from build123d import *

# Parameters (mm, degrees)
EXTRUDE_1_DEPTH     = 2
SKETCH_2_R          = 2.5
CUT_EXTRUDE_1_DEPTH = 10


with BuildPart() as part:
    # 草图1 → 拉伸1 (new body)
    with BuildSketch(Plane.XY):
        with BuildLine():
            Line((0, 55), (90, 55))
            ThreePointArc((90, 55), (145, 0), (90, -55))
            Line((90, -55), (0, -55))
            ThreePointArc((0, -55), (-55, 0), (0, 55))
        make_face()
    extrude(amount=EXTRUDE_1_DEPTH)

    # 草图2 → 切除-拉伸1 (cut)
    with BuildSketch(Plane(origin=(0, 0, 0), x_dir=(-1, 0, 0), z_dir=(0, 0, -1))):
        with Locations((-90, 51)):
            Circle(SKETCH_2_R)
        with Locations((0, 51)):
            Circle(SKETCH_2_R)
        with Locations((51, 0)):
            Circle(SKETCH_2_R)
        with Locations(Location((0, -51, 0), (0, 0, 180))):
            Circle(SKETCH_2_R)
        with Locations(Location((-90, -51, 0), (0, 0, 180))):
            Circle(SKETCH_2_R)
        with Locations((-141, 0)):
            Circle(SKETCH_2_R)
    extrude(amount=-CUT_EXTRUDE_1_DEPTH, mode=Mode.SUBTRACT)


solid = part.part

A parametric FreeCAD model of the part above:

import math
import FreeCAD as App
import Part
import Sketcher
from FreeCAD import Vector
Q = App.Units.Quantity

doc = App.newDocument("Part")
params = doc.addObject("Spreadsheet::Sheet", "Params")
for row, (alias, value) in enumerate([
    ("sketch1_radius", "55 mm"),
    ("sketch1_width", "90 mm"),
    ("pad1_length", "2 mm"),
    ("sketch2_diameter", "5 mm"),
    ("pocket1_length", "10 mm"),
], start=1):
    params.set(f"A{row}", alias)
    params.set(f"B{row}", "=" + value)
    params.setAlias(f"B{row}", alias)

body = doc.addObject("PartDesign::Body", "Body")

# Sketch on XY plane
sketch1 = body.newObject("Sketcher::SketchObject", "Sketch")
sketch1.AttachmentSupport = (doc.getObject("XY_Plane"), [""])
sketch1.MapMode = "FlatFace"
sketch1.addGeometry(Part.LineSegment(Vector(90, 55, 0), Vector(0, 55, 0)), False)
sketch1.addGeometry(Part.ArcOfCircle(Part.Circle(Vector(0, 0, 0), Vector(0, 0, 1), 55), math.radians(90), math.radians(270)), False)
sketch1.addGeometry(Part.LineSegment(Vector(0, -55, 0), Vector(90, -55, 0)), False)
sketch1.addGeometry(Part.ArcOfCircle(Part.Circle(Vector(90, 0, 0), Vector(0, 0, 1), 55), math.radians(-90), math.radians(90)), False)
sketch1.addConstraint(Sketcher.Constraint("Tangent", 0, 2, 1, 1))
sketch1.addConstraint(Sketcher.Constraint("Tangent", 1, 2, 2, 1))
sketch1.addConstraint(Sketcher.Constraint("Tangent", 2, 2, 3, 1))
sketch1.addConstraint(Sketcher.Constraint("Tangent", 3, 2, 0, 1))
sketch1.addConstraint(Sketcher.Constraint("Horizontal", 0))
sketch1.addConstraint(Sketcher.Constraint("Horizontal", 2))
sketch1.addConstraint(Sketcher.Constraint("Coincident", 1, 3, -1, 1))
sketch1.addConstraint(Sketcher.Constraint("Radius", 1, Q("55 mm")))
sketch1.addConstraint(Sketcher.Constraint("DistanceX", 0, 2, 0, 1, Q("90 mm")))
sketch1.setExpression("Constraints[7]", "Params.sketch1_radius")
sketch1.setExpression("Constraints[8]", "Params.sketch1_width")
pad1 = body.newObject("PartDesign::Pad", "Pad")
pad1.Profile = sketch1
pad1.setExpression("Length", "Params.pad1_length")

# Sketch on XY plane
sketch2 = body.newObject("Sketcher::SketchObject", "Sketch001")
sketch2.AttachmentSupport = (doc.getObject("XY_Plane"), [""])
sketch2.MapMode = "FlatFace"
sketch2.addGeometry(Part.Circle(Vector(90, 51, 0), Vector(0, 0, 1), 2.5), False)
sketch2.addGeometry(Part.Circle(Vector(0, 51, 0), Vector(0, 0, 1), 2.5), False)
sketch2.addGeometry(Part.Circle(Vector(-51, 0, 0), Vector(0, 0, 1), 2.5), False)
sketch2.addGeometry(Part.Circle(Vector(0, -51, 0), Vector(0, 0, 1), 2.5), False)
sketch2.addGeometry(Part.Circle(Vector(90, -51, 0), Vector(0, 0, 1), 2.5), False)
sketch2.addGeometry(Part.Circle(Vector(141, 0, 0), Vector(0, 0, 1), 2.5), False)
sketch2.addConstraint(Sketcher.Constraint("Equal", 0, 1))
sketch2.addConstraint(Sketcher.Constraint("Equal", 1, 2))
sketch2.addConstraint(Sketcher.Constraint("Equal", 2, 3))
sketch2.addConstraint(Sketcher.Constraint("Equal", 3, 4))
sketch2.addConstraint(Sketcher.Constraint("Equal", 4, 5))
sketch2.addConstraint(Sketcher.Constraint("Symmetric", 1, 3, 3, 3, -1, 1))
sketch2.addConstraint(Sketcher.Constraint("Symmetric", 0, 3, 4, 3, -1))
sketch2.addConstraint(Sketcher.Constraint("PointOnObject", 1, 3, -2))
sketch2.addConstraint(Sketcher.Constraint("PointOnObject", 2, 3, -1))
sketch2.addConstraint(Sketcher.Constraint("PointOnObject", 5, 3, -1))
sketch2.addConstraint(Sketcher.Constraint("Horizontal", 0, 3, 1, 3))
sketch2.addConstraint(Sketcher.Constraint("Diameter", 0, Q("5 mm")))
sketch2.addConstraint(Sketcher.Constraint("DistanceX", -1, 1, 0, 3, Q("90 mm")))
sketch2.addConstraint(Sketcher.Constraint("DistanceY", -1, 1, 0, 3, Q("51 mm")))
sketch2.addConstraint(Sketcher.Constraint("DistanceX", 2, 3, -1, 1, Q("51 mm")))
sketch2.addConstraint(Sketcher.Constraint("DistanceX", -1, 1, 5, 3, Q("141 mm")))
sketch2.setExpression("Constraints[11]", "Params.sketch2_diameter")
pocket1 = body.newObject("PartDesign::Pocket", "Pocket")
pocket1.Profile = sketch2
pocket1.setExpression("Length", "Params.pocket1_length")
pocket1.Reversed = True

doc.recompute()
